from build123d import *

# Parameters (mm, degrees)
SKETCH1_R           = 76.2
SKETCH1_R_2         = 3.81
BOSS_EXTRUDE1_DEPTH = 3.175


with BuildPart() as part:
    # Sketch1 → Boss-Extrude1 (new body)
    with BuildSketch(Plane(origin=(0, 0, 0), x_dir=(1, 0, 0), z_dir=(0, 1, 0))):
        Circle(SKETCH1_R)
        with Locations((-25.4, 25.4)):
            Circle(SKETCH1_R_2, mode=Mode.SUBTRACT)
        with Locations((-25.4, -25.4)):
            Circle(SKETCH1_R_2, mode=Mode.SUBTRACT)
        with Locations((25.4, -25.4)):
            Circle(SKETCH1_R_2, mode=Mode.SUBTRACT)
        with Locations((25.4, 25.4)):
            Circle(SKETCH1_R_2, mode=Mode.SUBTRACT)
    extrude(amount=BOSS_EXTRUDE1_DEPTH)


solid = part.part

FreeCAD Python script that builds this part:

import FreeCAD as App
import Part
import Sketcher

V = App.Vector
Q = App.Units.Quantity

doc = App.newDocument("Part")
body = doc.addObject("PartDesign::Body", "Body")

# Sketch on XZ plane
sketch1 = body.newObject("Sketcher::SketchObject", "Sketch")
sketch1.AttachmentSupport = (doc.getObject("XZ_Plane"), [""])
sketch1.MapMode = "FlatFace"
sketch1.addGeometry(Part.Circle(V(0, 0, 0), V(0, 0, 1), 76.2), False)
sketch1.addGeometry(Part.Circle(V(-25.4, 25.4, 0), V(0, 0, 1), 3.8), False)
sketch1.addGeometry(Part.Circle(V(25.4, 25.4, 0), V(0, 0, 1), 3.8), False)
sketch1.addGeometry(Part.Circle(V(-25.4, -25.4, 0), V(0, 0, 1), 3.8), False)
sketch1.addGeometry(Part.Circle(V(25.4, -25.4, 0), V(0, 0, 1), 3.8), False)
sketch1.addConstraint(Sketcher.Constraint("Coincident", 0, 3, -1, 1))
sketch1.addConstraint(Sketcher.Constraint("Equal", 1, 2))
sketch1.addConstraint(Sketcher.Constraint("Equal", 2, 3))
sketch1.addConstraint(Sketcher.Constraint("Equal", 3, 4))
sketch1.addConstraint(Sketcher.Constraint("Symmetric", 2, 3, 3, 3, -1, 1))
sketch1.addConstraint(Sketcher.Constraint("Symmetric", 1, 3, 4, 3, -1, 1))
sketch1.addConstraint(Sketcher.Constraint("Symmetric", 1, 3, 2, 3, -2))
sketch1.addConstraint(Sketcher.Constraint("Diameter", 0, Q("6 in")))
sketch1.addConstraint(Sketcher.Constraint("Diameter", 1, Q("0.3 in")))
sketch1.addConstraint(Sketcher.Constraint("DistanceX", 1, 3, -1, 1, Q("1 in")))
sketch1.addConstraint(Sketcher.Constraint("DistanceY", -1, 1, 1, 3, Q("1 in")))
pad1 = body.newObject("PartDesign::Pad", "Pad")
pad1.Profile = sketch1
pad1.Length = Q("0.125 in")
pad1.Reversed = True

doc.recompute()
